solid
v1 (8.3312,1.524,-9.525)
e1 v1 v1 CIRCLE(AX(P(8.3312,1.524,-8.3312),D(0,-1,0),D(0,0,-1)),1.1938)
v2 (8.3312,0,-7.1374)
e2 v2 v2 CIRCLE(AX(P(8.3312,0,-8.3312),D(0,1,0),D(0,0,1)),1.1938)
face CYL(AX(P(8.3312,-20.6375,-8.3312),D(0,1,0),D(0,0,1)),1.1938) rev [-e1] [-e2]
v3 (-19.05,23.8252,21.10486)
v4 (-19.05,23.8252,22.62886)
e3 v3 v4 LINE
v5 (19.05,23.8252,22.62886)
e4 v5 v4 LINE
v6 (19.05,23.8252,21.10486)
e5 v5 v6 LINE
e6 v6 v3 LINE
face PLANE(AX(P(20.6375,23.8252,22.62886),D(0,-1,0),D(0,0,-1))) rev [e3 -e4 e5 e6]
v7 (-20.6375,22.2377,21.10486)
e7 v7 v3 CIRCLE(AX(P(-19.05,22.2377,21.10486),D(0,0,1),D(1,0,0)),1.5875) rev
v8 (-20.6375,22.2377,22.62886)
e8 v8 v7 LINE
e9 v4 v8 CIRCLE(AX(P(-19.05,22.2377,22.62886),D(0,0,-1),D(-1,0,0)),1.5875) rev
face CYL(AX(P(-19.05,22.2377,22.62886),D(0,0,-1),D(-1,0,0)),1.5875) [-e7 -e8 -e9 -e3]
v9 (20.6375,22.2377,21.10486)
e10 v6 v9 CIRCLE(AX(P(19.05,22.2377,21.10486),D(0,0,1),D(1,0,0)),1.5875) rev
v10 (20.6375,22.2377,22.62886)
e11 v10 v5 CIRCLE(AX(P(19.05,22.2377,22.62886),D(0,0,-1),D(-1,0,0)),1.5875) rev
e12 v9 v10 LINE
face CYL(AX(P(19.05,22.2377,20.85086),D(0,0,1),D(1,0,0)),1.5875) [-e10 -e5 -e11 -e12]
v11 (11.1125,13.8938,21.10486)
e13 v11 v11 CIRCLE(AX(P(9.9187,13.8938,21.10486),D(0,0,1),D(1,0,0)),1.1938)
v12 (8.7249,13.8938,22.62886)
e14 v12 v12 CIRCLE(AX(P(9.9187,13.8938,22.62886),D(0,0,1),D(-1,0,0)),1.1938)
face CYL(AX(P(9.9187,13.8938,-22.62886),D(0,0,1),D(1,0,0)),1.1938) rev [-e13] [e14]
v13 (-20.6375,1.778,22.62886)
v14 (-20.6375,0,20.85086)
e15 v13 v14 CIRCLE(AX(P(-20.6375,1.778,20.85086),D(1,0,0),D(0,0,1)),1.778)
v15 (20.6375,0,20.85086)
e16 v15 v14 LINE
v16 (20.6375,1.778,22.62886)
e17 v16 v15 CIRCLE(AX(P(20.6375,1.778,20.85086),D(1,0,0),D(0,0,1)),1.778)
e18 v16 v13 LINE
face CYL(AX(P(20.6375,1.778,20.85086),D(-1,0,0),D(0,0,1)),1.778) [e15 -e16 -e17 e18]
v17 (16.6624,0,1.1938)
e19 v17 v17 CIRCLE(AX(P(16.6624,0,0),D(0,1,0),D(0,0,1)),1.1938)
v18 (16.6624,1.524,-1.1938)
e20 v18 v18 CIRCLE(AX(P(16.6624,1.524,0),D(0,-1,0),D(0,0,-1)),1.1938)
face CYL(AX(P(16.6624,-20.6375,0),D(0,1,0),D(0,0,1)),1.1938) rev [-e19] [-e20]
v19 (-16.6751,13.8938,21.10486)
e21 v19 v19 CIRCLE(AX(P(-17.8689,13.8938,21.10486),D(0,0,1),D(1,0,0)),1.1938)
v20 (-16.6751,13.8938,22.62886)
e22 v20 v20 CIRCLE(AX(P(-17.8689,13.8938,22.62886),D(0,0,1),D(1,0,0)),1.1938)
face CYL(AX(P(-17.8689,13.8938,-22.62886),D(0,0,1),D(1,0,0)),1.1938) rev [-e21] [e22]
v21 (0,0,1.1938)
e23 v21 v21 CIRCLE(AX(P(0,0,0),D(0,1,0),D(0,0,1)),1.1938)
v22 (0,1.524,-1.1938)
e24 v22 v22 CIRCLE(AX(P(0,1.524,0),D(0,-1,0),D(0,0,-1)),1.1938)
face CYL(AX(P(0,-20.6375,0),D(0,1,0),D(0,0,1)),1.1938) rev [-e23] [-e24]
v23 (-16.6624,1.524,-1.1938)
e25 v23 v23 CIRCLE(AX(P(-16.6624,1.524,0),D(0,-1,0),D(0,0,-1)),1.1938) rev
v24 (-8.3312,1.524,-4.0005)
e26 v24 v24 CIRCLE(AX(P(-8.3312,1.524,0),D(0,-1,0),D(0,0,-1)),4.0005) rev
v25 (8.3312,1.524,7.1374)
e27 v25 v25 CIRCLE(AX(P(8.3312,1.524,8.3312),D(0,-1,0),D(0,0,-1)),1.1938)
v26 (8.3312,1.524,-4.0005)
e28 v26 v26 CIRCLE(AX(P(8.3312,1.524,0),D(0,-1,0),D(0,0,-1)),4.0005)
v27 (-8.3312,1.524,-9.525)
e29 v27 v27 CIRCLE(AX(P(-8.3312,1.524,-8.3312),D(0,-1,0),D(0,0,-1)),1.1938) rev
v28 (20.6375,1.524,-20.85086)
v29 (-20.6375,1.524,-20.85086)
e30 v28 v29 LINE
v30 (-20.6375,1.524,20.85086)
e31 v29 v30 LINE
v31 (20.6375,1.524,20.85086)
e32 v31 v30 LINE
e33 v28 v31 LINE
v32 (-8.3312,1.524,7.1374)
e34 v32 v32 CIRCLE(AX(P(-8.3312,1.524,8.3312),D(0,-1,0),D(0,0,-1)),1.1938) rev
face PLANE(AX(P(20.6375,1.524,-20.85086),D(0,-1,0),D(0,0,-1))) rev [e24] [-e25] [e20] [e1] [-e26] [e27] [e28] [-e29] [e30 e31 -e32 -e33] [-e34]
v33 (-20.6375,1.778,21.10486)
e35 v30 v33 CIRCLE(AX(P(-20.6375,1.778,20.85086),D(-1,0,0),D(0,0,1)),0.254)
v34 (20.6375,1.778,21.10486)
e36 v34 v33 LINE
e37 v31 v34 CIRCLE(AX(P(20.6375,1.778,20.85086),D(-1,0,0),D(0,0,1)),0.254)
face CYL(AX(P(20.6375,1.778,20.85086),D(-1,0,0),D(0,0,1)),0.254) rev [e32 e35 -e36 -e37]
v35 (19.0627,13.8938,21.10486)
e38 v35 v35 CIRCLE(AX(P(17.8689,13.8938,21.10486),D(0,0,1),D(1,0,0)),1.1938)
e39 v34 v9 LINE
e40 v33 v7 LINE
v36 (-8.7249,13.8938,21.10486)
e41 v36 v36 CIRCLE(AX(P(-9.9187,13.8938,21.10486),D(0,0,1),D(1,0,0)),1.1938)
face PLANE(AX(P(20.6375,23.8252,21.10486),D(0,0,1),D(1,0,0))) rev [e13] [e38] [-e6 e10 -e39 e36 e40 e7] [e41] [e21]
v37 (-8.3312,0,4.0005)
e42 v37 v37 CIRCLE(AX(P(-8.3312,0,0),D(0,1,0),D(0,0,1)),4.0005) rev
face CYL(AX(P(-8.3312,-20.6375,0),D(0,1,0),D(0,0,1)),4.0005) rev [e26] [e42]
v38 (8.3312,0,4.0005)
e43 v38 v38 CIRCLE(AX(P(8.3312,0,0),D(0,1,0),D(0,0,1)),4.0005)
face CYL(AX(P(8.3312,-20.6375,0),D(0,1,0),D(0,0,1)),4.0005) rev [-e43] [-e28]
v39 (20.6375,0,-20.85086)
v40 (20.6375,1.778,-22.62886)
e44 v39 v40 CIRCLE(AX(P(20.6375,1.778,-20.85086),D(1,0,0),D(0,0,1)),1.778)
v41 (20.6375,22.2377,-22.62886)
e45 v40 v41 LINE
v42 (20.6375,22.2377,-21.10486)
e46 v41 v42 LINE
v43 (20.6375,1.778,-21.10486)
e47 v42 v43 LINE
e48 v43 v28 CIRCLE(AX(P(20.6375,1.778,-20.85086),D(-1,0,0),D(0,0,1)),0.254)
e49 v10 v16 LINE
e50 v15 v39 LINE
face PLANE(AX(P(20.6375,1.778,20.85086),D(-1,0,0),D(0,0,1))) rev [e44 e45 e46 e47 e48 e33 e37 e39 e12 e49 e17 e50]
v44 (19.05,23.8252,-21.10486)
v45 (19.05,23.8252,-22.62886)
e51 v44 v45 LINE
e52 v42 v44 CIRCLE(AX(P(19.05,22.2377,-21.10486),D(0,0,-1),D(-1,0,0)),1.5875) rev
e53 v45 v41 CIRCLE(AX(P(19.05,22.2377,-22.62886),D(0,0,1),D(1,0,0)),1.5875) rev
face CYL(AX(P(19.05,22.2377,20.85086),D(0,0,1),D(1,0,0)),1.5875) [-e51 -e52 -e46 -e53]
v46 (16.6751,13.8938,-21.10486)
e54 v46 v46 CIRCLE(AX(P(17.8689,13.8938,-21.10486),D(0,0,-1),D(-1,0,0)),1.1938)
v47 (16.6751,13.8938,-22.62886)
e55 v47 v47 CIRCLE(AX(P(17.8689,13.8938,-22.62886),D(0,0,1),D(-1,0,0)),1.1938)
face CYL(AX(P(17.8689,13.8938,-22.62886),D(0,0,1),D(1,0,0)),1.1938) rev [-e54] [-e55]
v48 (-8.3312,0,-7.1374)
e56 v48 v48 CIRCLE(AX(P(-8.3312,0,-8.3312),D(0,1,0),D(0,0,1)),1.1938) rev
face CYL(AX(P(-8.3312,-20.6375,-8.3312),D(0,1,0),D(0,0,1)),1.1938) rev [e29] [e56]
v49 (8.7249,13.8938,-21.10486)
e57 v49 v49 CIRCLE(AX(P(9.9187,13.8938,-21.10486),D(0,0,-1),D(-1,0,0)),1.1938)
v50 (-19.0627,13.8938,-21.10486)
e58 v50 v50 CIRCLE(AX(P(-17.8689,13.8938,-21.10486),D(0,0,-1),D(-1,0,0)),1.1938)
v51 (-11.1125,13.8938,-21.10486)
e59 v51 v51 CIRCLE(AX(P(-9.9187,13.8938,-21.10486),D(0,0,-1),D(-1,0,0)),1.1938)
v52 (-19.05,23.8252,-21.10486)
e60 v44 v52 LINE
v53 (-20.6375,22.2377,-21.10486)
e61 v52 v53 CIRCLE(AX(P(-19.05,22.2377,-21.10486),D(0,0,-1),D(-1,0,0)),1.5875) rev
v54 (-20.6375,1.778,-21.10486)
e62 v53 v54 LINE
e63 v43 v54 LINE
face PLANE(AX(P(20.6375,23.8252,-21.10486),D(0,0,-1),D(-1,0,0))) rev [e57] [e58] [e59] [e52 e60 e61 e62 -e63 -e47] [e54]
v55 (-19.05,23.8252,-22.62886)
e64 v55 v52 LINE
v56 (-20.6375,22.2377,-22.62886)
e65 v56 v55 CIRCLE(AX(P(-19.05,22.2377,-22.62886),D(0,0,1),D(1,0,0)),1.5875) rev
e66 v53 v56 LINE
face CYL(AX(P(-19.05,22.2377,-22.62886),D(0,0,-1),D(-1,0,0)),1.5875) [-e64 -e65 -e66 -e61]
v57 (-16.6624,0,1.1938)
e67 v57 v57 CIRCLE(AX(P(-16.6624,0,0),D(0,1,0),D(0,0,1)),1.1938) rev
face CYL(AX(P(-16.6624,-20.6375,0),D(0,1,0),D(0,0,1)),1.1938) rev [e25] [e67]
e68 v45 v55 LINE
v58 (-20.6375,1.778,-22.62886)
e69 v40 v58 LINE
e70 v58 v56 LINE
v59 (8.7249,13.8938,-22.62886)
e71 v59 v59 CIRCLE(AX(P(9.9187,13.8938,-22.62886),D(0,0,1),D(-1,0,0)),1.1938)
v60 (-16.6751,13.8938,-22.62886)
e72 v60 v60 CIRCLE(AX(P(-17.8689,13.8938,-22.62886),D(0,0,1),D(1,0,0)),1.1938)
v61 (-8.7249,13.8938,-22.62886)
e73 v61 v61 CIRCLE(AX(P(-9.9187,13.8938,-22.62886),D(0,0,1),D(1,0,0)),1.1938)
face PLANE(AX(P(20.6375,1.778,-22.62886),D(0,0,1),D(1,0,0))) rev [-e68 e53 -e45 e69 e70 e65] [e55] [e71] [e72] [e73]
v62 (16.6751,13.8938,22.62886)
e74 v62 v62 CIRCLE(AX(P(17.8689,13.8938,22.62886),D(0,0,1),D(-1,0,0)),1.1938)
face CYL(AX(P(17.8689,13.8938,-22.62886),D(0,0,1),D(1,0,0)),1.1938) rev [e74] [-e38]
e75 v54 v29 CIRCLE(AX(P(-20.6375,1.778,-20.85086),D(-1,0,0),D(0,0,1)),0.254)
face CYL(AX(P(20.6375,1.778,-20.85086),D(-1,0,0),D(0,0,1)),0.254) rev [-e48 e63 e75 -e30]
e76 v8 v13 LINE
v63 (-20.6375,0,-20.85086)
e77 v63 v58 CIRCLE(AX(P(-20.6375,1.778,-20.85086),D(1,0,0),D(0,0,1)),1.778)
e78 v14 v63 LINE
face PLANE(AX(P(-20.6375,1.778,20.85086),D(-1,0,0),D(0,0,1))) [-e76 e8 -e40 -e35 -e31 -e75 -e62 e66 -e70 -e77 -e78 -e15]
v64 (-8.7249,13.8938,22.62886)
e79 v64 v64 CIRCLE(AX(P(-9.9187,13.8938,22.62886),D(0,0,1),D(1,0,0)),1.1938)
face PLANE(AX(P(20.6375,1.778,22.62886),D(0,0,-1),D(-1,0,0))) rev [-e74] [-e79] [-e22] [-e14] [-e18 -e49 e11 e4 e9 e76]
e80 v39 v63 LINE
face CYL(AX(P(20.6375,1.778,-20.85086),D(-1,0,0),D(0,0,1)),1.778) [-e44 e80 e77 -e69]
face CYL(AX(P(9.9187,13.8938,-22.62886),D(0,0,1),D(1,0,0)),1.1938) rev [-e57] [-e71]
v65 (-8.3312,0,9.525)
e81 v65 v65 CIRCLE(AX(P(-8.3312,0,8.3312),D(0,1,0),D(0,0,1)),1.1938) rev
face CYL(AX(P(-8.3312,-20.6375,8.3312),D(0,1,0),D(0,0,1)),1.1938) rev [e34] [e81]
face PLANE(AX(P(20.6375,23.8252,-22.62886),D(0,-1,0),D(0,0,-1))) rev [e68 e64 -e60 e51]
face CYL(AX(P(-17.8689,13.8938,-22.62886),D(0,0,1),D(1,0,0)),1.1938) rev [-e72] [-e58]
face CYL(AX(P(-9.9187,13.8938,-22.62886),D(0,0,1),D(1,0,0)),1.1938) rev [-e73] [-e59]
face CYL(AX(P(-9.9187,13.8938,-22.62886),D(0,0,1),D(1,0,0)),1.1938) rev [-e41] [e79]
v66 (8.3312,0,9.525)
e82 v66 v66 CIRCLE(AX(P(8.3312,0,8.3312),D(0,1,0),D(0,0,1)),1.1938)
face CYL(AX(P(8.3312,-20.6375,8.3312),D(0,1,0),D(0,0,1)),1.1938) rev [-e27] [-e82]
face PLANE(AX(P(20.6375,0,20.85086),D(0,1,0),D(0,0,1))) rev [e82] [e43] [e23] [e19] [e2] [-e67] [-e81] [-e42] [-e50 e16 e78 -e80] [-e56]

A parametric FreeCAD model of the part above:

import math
import FreeCAD as App
import Part
import Sketcher
from FreeCAD import Vector
Q = App.Units.Quantity


def edges_at(feature, points):
    """Names of the edges that pass closest to the given points."""
    edges = feature.Shape.Edges
    near = lambda p: min(range(len(edges)), key=lambda i: edges[i].distToShape(Part.Vertex(*p))[0])
    return sorted({f"Edge{near(p) + 1}" for p in points})

doc = App.newDocument("Part")
body = doc.addObject("PartDesign::Body", "Body")

# Sketch on YZ plane
sketch1 = body.newObject("Sketcher::SketchObject", "Sketch")
sketch1.AttachmentSupport = (doc.getObject("YZ_Plane"), [""])
sketch1.MapMode = "FlatFace"
sketch1.addGeometry([
    Part.LineSegment(Vector(0, 20.85, 0), Vector(0, -20.85, 0)),  # 0
    Part.ArcOfCircle(Part.Circle(Vector(1.78, -20.85, 0), Vector(0, 0, 1), 1.78), math.radians(180), math.radians(270)),  # 1
    Part.LineSegment(Vector(1.78, -22.63, 0), Vector(23.83, -22.63, 0)),  # 2
    Part.LineSegment(Vector(23.83, -22.63, 0), Vector(23.83, -21.1, 0)),  # 3
    Part.LineSegment(Vector(23.83, -21.1, 0), Vector(1.78, -21.1, 0)),  # 4
    Part.ArcOfCircle(Part.Circle(Vector(1.78, -20.85, 0), Vector(0, 0, 1), 0.25), math.radians(-180), math.radians(-90)),  # 5
    Part.LineSegment(Vector(1.52, -20.85, 0), Vector(1.52, 20.85, 0)),  # 6
    Part.ArcOfCircle(Part.Circle(Vector(1.78, 20.85, 0), Vector(0, 0, 1), 0.25), math.radians(90), math.radians(180)),  # 7
    Part.LineSegment(Vector(1.78, 21.1, 0), Vector(23.83, 21.1, 0)),  # 8
    Part.LineSegment(Vector(23.83, 21.1, 0), Vector(23.83, 22.63, 0)),  # 9
    Part.LineSegment(Vector(23.83, 22.63, 0), Vector(1.78, 22.63, 0)),  # 10
    Part.ArcOfCircle(Part.Circle(Vector(1.78, 20.85, 0), Vector(0, 0, 1), 1.78), math.radians(90), math.radians(180)),  # 11
], False)
sketch1.addConstraint([
    Sketcher.Constraint("Tangent", 0, 2, 1, 1),
    Sketcher.Constraint("Tangent", 1, 2, 2, 1),
    Sketcher.Constraint("Coincident", 2, 2, 3, 1),
    Sketcher.Constraint("Coincident", 3, 2, 4, 1),
    Sketcher.Constraint("Tangent", 4, 2, 5, 2),
    Sketcher.Constraint("Tangent", 5, 1, 6, 1),
    Sketcher.Constraint("Tangent", 6, 2, 7, 2),
    Sketcher.Constraint("Tangent", 7, 1, 8, 1),
    Sketcher.Constraint("Coincident", 8, 2, 9, 1),
    Sketcher.Constraint("Coincident", 9, 2, 10, 1),
    Sketcher.Constraint("Tangent", 10, 2, 11, 1),
    Sketcher.Constraint("Tangent", 11, 2, 0, 1),
    Sketcher.Constraint("Vertical", 0),
    Sketcher.Constraint("Horizontal", 2),
    Sketcher.Constraint("Vertical", 3),
    Sketcher.Constraint("Horizontal", 4),
    Sketcher.Constraint("Vertical", 6),
    Sketcher.Constraint("Horizontal", 8),
    Sketcher.Constraint("Vertical", 9),
    Sketcher.Constraint("Horizontal", 10),
    Sketcher.Constraint("Coincident", 5, 3, 1, 3),
    Sketcher.Constraint("Coincident", 11, 3, 7, 3),
    Sketcher.Constraint("Equal", 5, 7),
    Sketcher.Constraint("Symmetric", 0, 2, 11, 2, -1, 1),
    Sketcher.Constraint("Vertical", 3, 2, 8, 2),
    Sketcher.Constraint("Radius", 1, Q("0.07 in")),
    Sketcher.Constraint("Radius", 5, Q("0.01 in")),
    Sketcher.Constraint("DistanceX", 2, 1, 2, 2, Q("0.868 in")),
    Sketcher.Constraint("DistanceY", 0, 2, 0, 1, Q("1.6418 in")),
])
pad1 = body.newObject("PartDesign::Pad", "Pad")
pad1.Profile = sketch1
pad1.Type = "TwoLengths"
pad1.Length = Q("0.8125 in")
pad1.Length2 = Q("0.8125 in")

# Sketch on XZ plane
sketch2 = body.newObject("Sketcher::SketchObject", "Sketch001")
sketch2.AttachmentSupport = (doc.getObject("XZ_Plane"), [""])
sketch2.MapMode = "FlatFace"
sketch2.addGeometry([
    Part.Circle(Vector(-8.3, 0, 0), Vector(0, 0, 1), 4),  # 0
    Part.Circle(Vector(8.3, 0, 0), Vector(0, 0, 1), 4),  # 1
    Part.Circle(Vector(16.7, 0, 0), Vector(0, 0, 1), 1.2),  # 2
    Part.Circle(Vector(-16.7, 0, 0), Vector(0, 0, 1), 1.2),  # 3
    Part.Circle(Vector(-8.3, -8.3, 0), Vector(0, 0, 1), 1.2),  # 4
    Part.Circle(Vector(8.3, -8.3, 0), Vector(0, 0, 1), 1.2),  # 5
    Part.Circle(Vector(-8.3, 8.3, 0), Vector(0, 0, 1), 1.2),  # 6
    Part.Circle(Vector(8.3, 8.3, 0), Vector(0, 0, 1), 1.2),  # 7
    Part.Circle(Vector(0, 0, 0), Vector(0, 0, 1), 1.2),  # 8
], False)
sketch2.addConstraint([
    Sketcher.Constraint("Coincident", 8, 3, -1, 1),
    Sketcher.Constraint("Equal", 0, 1),
    Sketcher.Constraint("Equal", 2, 3),
    Sketcher.Constraint("Equal", 3, 4),
    Sketcher.Constraint("Equal", 4, 5),
    Sketcher.Constraint("Equal", 5, 6),
    Sketcher.Constraint("Equal", 6, 7),
    Sketcher.Constraint("Equal", 7, 8),
    Sketcher.Constraint("Symmetric", 0, 3, 1, 3, -1, 1),
    Sketcher.Constraint("Symmetric", 2, 3, 3, 3, -1, 1),
    Sketcher.Constraint("Symmetric", 5, 3, 6, 3, -1, 1),
    Sketcher.Constraint("Symmetric", 4, 3, 7, 3, -1, 1),
    Sketcher.Constraint("Symmetric", 4, 3, 5, 3, -2),
    Sketcher.Constraint("PointOnObject", 0, 3, -1),
    Sketcher.Constraint("PointOnObject", 2, 3, -1),
    Sketcher.Constraint("Vertical", 0, 3, 4, 3),
    Sketcher.Constraint("Diameter", 0, Q("0.315 in")),
    Sketcher.Constraint("Diameter", 2, Q("0.094 in")),
    Sketcher.Constraint("DistanceX", 0, 3, -1, 1, Q("0.328 in")),
    Sketcher.Constraint("DistanceX", -1, 1, 2, 3, Q("0.656 in")),
    Sketcher.Constraint("DistanceY", 4, 3, -1, 1, Q("0.328 in")),
])
pocket1 = body.newObject("PartDesign::Pocket", "Pocket")
pocket1.Profile = sketch2
pocket1.Type = "ThroughAll"
pocket1.Midplane = True

# Sketch on XY plane
sketch3 = body.newObject("Sketcher::SketchObject", "Sketch002")
sketch3.AttachmentSupport = (doc.getObject("XY_Plane"), [""])
sketch3.MapMode = "FlatFace"
sketch3.addGeometry([
    Part.Circle(Vector(-17.9, 13.9, 0), Vector(0, 0, 1), 1.2),
    Part.Circle(Vector(-9.9, 13.9, 0), Vector(0, 0, 1), 1.2),
    Part.Circle(Vector(9.9, 13.9, 0), Vector(0, 0, 1), 1.2),
    Part.Circle(Vector(17.9, 13.9, 0), Vector(0, 0, 1), 1.2),
], False)
sketch3.addConstraint([
    Sketcher.Constraint("Equal", 0, 1),
    Sketcher.Constraint("Equal", 1, 2),
    Sketcher.Constraint("Equal", 2, 3),
    Sketcher.Constraint("Symmetric", 1, 3, 2, 3, -2),
    Sketcher.Constraint("Symmetric", 0, 3, 3, 3, -2),
    Sketcher.Constraint("Horizontal", 0, 3, 1, 3),
    Sketcher.Constraint("Diameter", 0, Q("0.094 in")),
    Sketcher.Constraint("DistanceY", -1, 1, 0, 3, Q("0.547 in")),
    Sketcher.Constraint("DistanceX", 0, 3, 1, 3, Q("0.313 in")),
    Sketcher.Constraint("DistanceX", 1, 3, 2, 3, Q("0.781 in")),
])
pocket2 = body.newObject("PartDesign::Pocket", "Pocket001")
pocket2.Profile = sketch3
pocket2.Type = "ThroughAll"
pocket2.Midplane = True
doc.recompute()

fillet = body.newObject("PartDesign::Fillet", "Fillet")
fillet.Base = (pocket2, edges_at(pocket2, [
    (20.637, 23.825, -21.867),
    (-20.637, 23.825, 21.867),
    (-20.637, 23.825, -21.867),
    (20.637, 23.825, 21.867),
]))
fillet.Radius = Q("0.0625 in")

doc.recompute()
